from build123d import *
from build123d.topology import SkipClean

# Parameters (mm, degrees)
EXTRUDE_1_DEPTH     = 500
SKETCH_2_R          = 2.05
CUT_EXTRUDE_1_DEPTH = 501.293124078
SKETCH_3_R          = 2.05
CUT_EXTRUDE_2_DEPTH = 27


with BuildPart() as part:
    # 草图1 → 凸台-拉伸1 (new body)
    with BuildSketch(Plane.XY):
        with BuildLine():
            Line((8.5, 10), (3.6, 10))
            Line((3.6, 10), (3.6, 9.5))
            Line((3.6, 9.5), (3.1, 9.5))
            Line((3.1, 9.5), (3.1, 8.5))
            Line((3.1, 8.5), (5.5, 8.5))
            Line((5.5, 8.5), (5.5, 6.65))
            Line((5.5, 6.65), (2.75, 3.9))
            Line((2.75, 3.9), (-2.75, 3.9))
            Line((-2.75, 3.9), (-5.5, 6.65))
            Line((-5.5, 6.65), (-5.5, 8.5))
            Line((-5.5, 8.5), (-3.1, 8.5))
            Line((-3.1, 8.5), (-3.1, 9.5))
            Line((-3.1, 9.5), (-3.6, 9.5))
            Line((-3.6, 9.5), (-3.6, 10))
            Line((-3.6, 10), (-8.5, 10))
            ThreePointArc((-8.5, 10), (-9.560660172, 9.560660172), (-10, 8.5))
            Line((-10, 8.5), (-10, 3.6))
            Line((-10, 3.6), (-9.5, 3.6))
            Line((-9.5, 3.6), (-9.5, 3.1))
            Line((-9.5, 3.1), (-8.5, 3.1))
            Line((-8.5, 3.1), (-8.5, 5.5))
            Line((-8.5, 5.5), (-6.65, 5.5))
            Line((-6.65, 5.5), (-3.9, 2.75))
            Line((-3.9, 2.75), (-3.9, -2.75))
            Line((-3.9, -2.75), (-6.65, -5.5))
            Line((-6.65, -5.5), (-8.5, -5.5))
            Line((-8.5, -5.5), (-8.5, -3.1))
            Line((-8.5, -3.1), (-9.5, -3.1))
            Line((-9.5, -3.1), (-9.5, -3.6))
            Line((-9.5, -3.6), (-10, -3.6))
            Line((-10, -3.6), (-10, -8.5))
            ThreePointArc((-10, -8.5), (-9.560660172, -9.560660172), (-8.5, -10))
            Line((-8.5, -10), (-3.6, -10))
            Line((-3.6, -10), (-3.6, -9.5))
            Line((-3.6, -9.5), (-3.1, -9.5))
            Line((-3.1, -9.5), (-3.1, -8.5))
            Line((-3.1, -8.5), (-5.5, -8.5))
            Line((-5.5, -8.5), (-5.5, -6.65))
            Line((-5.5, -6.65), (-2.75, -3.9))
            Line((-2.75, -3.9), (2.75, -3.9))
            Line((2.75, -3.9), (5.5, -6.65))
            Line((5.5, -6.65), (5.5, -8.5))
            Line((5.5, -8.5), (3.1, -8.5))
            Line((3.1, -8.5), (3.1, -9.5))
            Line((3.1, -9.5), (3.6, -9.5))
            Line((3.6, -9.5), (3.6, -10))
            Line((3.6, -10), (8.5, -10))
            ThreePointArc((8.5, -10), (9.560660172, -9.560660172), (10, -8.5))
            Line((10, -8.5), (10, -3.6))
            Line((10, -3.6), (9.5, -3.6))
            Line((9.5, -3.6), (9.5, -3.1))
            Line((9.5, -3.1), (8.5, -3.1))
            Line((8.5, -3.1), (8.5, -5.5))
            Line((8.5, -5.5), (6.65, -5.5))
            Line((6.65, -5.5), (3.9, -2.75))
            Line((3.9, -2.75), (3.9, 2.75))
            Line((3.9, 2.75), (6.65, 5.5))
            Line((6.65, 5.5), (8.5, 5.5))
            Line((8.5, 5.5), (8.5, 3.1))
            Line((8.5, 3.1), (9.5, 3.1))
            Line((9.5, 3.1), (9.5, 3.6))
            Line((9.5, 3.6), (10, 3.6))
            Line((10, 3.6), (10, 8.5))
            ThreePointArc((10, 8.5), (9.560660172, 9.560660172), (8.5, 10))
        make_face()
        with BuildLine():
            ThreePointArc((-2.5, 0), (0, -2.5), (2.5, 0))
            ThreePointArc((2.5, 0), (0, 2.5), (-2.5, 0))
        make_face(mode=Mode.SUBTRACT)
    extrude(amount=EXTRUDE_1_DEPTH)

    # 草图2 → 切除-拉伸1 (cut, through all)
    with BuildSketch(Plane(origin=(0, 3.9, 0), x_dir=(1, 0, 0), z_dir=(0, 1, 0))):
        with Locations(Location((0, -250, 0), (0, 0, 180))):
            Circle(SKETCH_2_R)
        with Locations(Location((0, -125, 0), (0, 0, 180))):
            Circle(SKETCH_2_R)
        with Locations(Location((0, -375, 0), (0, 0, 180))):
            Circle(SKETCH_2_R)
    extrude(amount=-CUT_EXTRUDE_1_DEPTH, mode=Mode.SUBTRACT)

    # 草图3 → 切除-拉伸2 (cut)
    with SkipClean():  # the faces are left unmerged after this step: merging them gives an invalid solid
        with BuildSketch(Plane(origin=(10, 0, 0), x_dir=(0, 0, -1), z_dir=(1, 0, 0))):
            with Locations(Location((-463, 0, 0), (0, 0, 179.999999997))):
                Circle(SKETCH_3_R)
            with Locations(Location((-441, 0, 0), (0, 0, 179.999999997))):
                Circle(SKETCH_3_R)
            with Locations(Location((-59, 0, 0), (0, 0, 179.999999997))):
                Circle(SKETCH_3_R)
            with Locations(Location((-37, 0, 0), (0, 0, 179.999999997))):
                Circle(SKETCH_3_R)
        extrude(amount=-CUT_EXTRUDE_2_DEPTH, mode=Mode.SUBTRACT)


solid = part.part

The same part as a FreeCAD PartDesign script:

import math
import FreeCAD as App
import Part
import Sketcher

V = App.Vector

doc = App.newDocument("Part")
body = doc.addObject("PartDesign::Body", "Body")

sketch1 = body.newObject("Sketcher::SketchObject", "Sketch")
sketch1.AttachmentSupport = (doc.getObject("XY_Plane"), [""])
sketch1.MapMode = "FlatFace"
sketch1.addGeometry([
    Part.LineSegment(V(8.5, 10, 0), V(3.6, 10, 0)),
    Part.LineSegment(V(3.6, 10, 0), V(3.6, 9.5, 0)),
    Part.LineSegment(V(3.6, 9.5, 0), V(3.1, 9.5, 0)),
    Part.LineSegment(V(3.1, 9.5, 0), V(3.1, 8.5, 0)),
    Part.LineSegment(V(3.1, 8.5, 0), V(5.5, 8.5, 0)),
    Part.LineSegment(V(5.5, 8.5, 0), V(5.5, 6.7, 0)),
    Part.LineSegment(V(5.5, 6.7, 0), V(2.8, 3.9, 0)),
    Part.LineSegment(V(2.8, 3.9, 0), V(-2.8, 3.9, 0)),
    Part.LineSegment(V(-2.8, 3.9, 0), V(-5.5, 6.7, 0)),
    Part.LineSegment(V(-5.5, 6.7, 0), V(-5.5, 8.5, 0)),
    Part.LineSegment(V(-5.5, 8.5, 0), V(-3.1, 8.5, 0)),
    Part.LineSegment(V(-3.1, 8.5, 0), V(-3.1, 9.5, 0)),
    Part.LineSegment(V(-3.1, 9.5, 0), V(-3.6, 9.5, 0)),
    Part.LineSegment(V(-3.6, 9.5, 0), V(-3.6, 10, 0)),
    Part.LineSegment(V(-3.6, 10, 0), V(-8.5, 10, 0)),
    Part.ArcOfCircle(Part.Circle(V(-8.5, 8.5, 0), V(0, 0, 1), 1.5), math.radians(90), math.radians(180)),
    Part.LineSegment(V(-10, 8.5, 0), V(-10, 3.6, 0)),
    Part.LineSegment(V(-10, 3.6, 0), V(-9.5, 3.6, 0)),
    Part.LineSegment(V(-9.5, 3.6, 0), V(-9.5, 3.1, 0)),
    Part.LineSegment(V(-9.5, 3.1, 0), V(-8.5, 3.1, 0)),
    Part.LineSegment(V(-8.5, 3.1, 0), V(-8.5, 5.5, 0)),
    Part.LineSegment(V(-8.5, 5.5, 0), V(-6.7, 5.5, 0)),
    Part.LineSegment(V(-6.7, 5.5, 0), V(-3.9, 2.8, 0)),
    Part.LineSegment(V(-3.9, 2.8, 0), V(-3.9, -2.8, 0)),
    Part.LineSegment(V(-3.9, -2.8, 0), V(-6.7, -5.5, 0)),
    Part.LineSegment(V(-6.7, -5.5, 0), V(-8.5, -5.5, 0)),
    Part.LineSegment(V(-8.5, -5.5, 0), V(-8.5, -3.1, 0)),
    Part.LineSegment(V(-8.5, -3.1, 0), V(-9.5, -3.1, 0)),
    Part.LineSegment(V(-9.5, -3.1, 0), V(-9.5, -3.6, 0)),
    Part.LineSegment(V(-9.5, -3.6, 0), V(-10, -3.6, 0)),
    Part.LineSegment(V(-10, -3.6, 0), V(-10, -8.5, 0)),
    Part.ArcOfCircle(Part.Circle(V(-8.5, -8.5, 0), V(0, 0, 1), 1.5), math.radians(180), math.radians(270)),
    Part.LineSegment(V(-8.5, -10, 0), V(-3.6, -10, 0)),
    Part.LineSegment(V(-3.6, -10, 0), V(-3.6, -9.5, 0)),
    Part.LineSegment(V(-3.6, -9.5, 0), V(-3.1, -9.5, 0)),
    Part.LineSegment(V(-3.1, -9.5, 0), V(-3.1, -8.5, 0)),
    Part.LineSegment(V(-3.1, -8.5, 0), V(-5.5, -8.5, 0)),
    Part.LineSegment(V(-5.5, -8.5, 0), V(-5.5, -6.7, 0)),
    Part.LineSegment(V(-5.5, -6.7, 0), V(-2.8, -3.9, 0)),
    Part.LineSegment(V(-2.8, -3.9, 0), V(2.8, -3.9, 0)),
    Part.LineSegment(V(2.8, -3.9, 0), V(5.5, -6.7, 0)),
    Part.LineSegment(V(5.5, -6.7, 0), V(5.5, -8.5, 0)),
    Part.LineSegment(V(5.5, -8.5, 0), V(3.1, -8.5, 0)),
    Part.LineSegment(V(3.1, -8.5, 0), V(3.1, -9.5, 0)),
    Part.LineSegment(V(3.1, -9.5, 0), V(3.6, -9.5, 0)),
    Part.LineSegment(V(3.6, -9.5, 0), V(3.6, -10, 0)),
    Part.LineSegment(V(3.6, -10, 0), V(8.5, -10, 0)),
    Part.ArcOfCircle(Part.Circle(V(8.5, -8.5, 0), V(0, 0, 1), 1.5), math.radians(-90), math.radians(0)),
    Part.LineSegment(V(10, -8.5, 0), V(10, -3.6, 0)),
    Part.LineSegment(V(10, -3.6, 0), V(9.5, -3.6, 0)),
    Part.LineSegment(V(9.5, -3.6, 0), V(9.5, -3.1, 0)),
    Part.LineSegment(V(9.5, -3.1, 0), V(8.5, -3.1, 0)),
    Part.LineSegment(V(8.5, -3.1, 0), V(8.5, -5.5, 0)),
    Part.LineSegment(V(8.5, -5.5, 0), V(6.7, -5.5, 0)),
    Part.LineSegment(V(6.7, -5.5, 0), V(3.9, -2.8, 0)),
    Part.LineSegment(V(3.9, -2.8, 0), V(3.9, 2.8, 0)),
    Part.LineSegment(V(3.9, 2.8, 0), V(6.7, 5.5, 0)),
    Part.LineSegment(V(6.7, 5.5, 0), V(8.5, 5.5, 0)),
    Part.LineSegment(V(8.5, 5.5, 0), V(8.5, 3.1, 0)),
    Part.LineSegment(V(8.5, 3.1, 0), V(9.5, 3.1, 0)),
    Part.LineSegment(V(9.5, 3.1, 0), V(9.5, 3.6, 0)),
    Part.LineSegment(V(9.5, 3.6, 0), V(10, 3.6, 0)),
    Part.LineSegment(V(10, 3.6, 0), V(10, 8.5, 0)),
    Part.ArcOfCircle(Part.Circle(V(8.5, 8.5, 0), V(0, 0, 1), 1.5), math.radians(0), math.radians(90)),
    Part.Circle(V(0, 0, 0), V(0, 0, 1), 2.5),
], False)
sketch1.addConstraint([
    Sketcher.Constraint("Coincident", 0, 2, 1, 1),
    Sketcher.Constraint("Coincident", 1, 2, 2, 1),
    Sketcher.Constraint("Coincident", 2, 2, 3, 1),
    Sketcher.Constraint("Coincident", 3, 2, 4, 1),
    Sketcher.Constraint("Coincident", 4, 2, 5, 1),
    Sketcher.Constraint("Coincident", 5, 2, 6, 1),
    Sketcher.Constraint("Coincident", 6, 2, 7, 1),
    Sketcher.Constraint("Coincident", 7, 2, 8, 1),
    Sketcher.Constraint("Coincident", 8, 2, 9, 1),
    Sketcher.Constraint("Coincident", 9, 2, 10, 1),
    Sketcher.Constraint("Coincident", 10, 2, 11, 1),
    Sketcher.Constraint("Coincident", 11, 2, 12, 1),
    Sketcher.Constraint("Coincident", 12, 2, 13, 1),
    Sketcher.Constraint("Coincident", 13, 2, 14, 1),
    Sketcher.Constraint("Tangent", 14, 2, 15, 1),
    Sketcher.Constraint("Tangent", 15, 2, 16, 1),
    Sketcher.Constraint("Coincident", 16, 2, 17, 1),
    Sketcher.Constraint("Coincident", 17, 2, 18, 1),
    Sketcher.Constraint("Coincident", 18, 2, 19, 1),
    Sketcher.Constraint("Coincident", 19, 2, 20, 1),
    Sketcher.Constraint("Coincident", 20, 2, 21, 1),
    Sketcher.Constraint("Coincident", 21, 2, 22, 1),
    Sketcher.Constraint("Coincident", 22, 2, 23, 1),
    Sketcher.Constraint("Coincident", 23, 2, 24, 1),
    Sketcher.Constraint("Coincident", 24, 2, 25, 1),
    Sketcher.Constraint("Coincident", 25, 2, 26, 1),
    Sketcher.Constraint("Coincident", 26, 2, 27, 1),
    Sketcher.Constraint("Coincident", 27, 2, 28, 1),
    Sketcher.Constraint("Coincident", 28, 2, 29, 1),
    Sketcher.Constraint("Coincident", 29, 2, 30, 1),
    Sketcher.Constraint("Tangent", 30, 2, 31, 1),
    Sketcher.Constraint("Tangent", 31, 2, 32, 1),
    Sketcher.Constraint("Coincident", 32, 2, 33, 1),
    Sketcher.Constraint("Coincident", 33, 2, 34, 1),
    Sketcher.Constraint("Coincident", 34, 2, 35, 1),
    Sketcher.Constraint("Coincident", 35, 2, 36, 1),
    Sketcher.Constraint("Coincident", 36, 2, 37, 1),
    Sketcher.Constraint("Coincident", 37, 2, 38, 1),
    Sketcher.Constraint("Coincident", 38, 2, 39, 1),
    Sketcher.Constraint("Coincident", 39, 2, 40, 1),
    Sketcher.Constraint("Coincident", 40, 2, 41, 1),
    Sketcher.Constraint("Coincident", 41, 2, 42, 1),
    Sketcher.Constraint("Coincident", 42, 2, 43, 1),
    Sketcher.Constraint("Coincident", 43, 2, 44, 1),
    Sketcher.Constraint("Coincident", 44, 2, 45, 1),
    Sketcher.Constraint("Coincident", 45, 2, 46, 1),
    Sketcher.Constraint("Tangent", 46, 2, 47, 1),
    Sketcher.Constraint("Tangent", 47, 2, 48, 1),
    Sketcher.Constraint("Coincident", 48, 2, 49, 1),
    Sketcher.Constraint("Coincident", 49, 2, 50, 1),
    Sketcher.Constraint("Coincident", 50, 2, 51, 1),
    Sketcher.Constraint("Coincident", 51, 2, 52, 1),
    Sketcher.Constraint("Coincident", 52, 2, 53, 1),
    Sketcher.Constraint("Coincident", 53, 2, 54, 1),
    Sketcher.Constraint("Coincident", 54, 2, 55, 1),
    Sketcher.Constraint("Coincident", 55, 2, 56, 1),
    Sketcher.Constraint("Coincident", 56, 2, 57, 1),
    Sketcher.Constraint("Coincident", 57, 2, 58, 1),
    Sketcher.Constraint("Coincident", 58, 2, 59, 1),
    Sketcher.Constraint("Coincident", 59, 2, 60, 1),
    Sketcher.Constraint("Coincident", 60, 2, 61, 1),
    Sketcher.Constraint("Coincident", 61, 2, 62, 1),
    Sketcher.Constraint("Tangent", 62, 2, 63, 1),
    Sketcher.Constraint("Tangent", 63, 2, 0, 1),
    Sketcher.Constraint("Horizontal", 0),
    Sketcher.Constraint("Vertical", 1),
    Sketcher.Constraint("Horizontal", 2),
    Sketcher.Constraint("Vertical", 3),
    Sketcher.Constraint("Horizontal", 4),
    Sketcher.Constraint("Vertical", 5),
    Sketcher.Constraint("Horizontal", 7),
    Sketcher.Constraint("Vertical", 9),
    Sketcher.Constraint("Horizontal", 10),
    Sketcher.Constraint("Vertical", 11),
    Sketcher.Constraint("Horizontal", 12),
    Sketcher.Constraint("Vertical", 13),
    Sketcher.Constraint("Horizontal", 14),
    Sketcher.Constraint("Vertical", 16),
    Sketcher.Constraint("Horizontal", 17),
    Sketcher.Constraint("Vertical", 18),
    Sketcher.Constraint("Horizontal", 19),
    Sketcher.Constraint("Vertical", 20),
    Sketcher.Constraint("Horizontal", 21),
    Sketcher.Constraint("Vertical", 23),
    Sketcher.Constraint("Horizontal", 25),
    Sketcher.Constraint("Vertical", 26),
    Sketcher.Constraint("Horizontal", 27),
    Sketcher.Constraint("Vertical", 28),
    Sketcher.Constraint("Horizontal", 29),
    Sketcher.Constraint("Vertical", 30),
    Sketcher.Constraint("Horizontal", 32),
    Sketcher.Constraint("Vertical", 33),
    Sketcher.Constraint("Horizontal", 34),
    Sketcher.Constraint("Vertical", 35),
    Sketcher.Constraint("Horizontal", 36),
    Sketcher.Constraint("Vertical", 37),
    Sketcher.Constraint("Horizontal", 39),
    Sketcher.Constraint("Vertical", 41),
    Sketcher.Constraint("Horizontal", 42),
    Sketcher.Constraint("Vertical", 43),
    Sketcher.Constraint("Horizontal", 44),
    Sketcher.Constraint("Vertical", 45),
    Sketcher.Constraint("Horizontal", 46),
    Sketcher.Constraint("Vertical", 48),
    Sketcher.Constraint("Horizontal", 49),
    Sketcher.Constraint("Vertical", 50),
    Sketcher.Constraint("Horizontal", 51),
    Sketcher.Constraint("Vertical", 52),
    Sketcher.Constraint("Horizontal", 53),
    Sketcher.Constraint("Vertical", 55),
    Sketcher.Constraint("Horizontal", 57),
    Sketcher.Constraint("Vertical", 58),
    Sketcher.Constraint("Horizontal", 59),
    Sketcher.Constraint("Vertical", 60),
    Sketcher.Constraint("Horizontal", 61),
    Sketcher.Constraint("Vertical", 62),
    Sketcher.Constraint("Coincident", 64, 3, -1, 1),
    Sketcher.Constraint("Equal", 15, 31),
    Sketcher.Constraint("Equal", 31, 47),
    Sketcher.Constraint("Equal", 47, 63),
    Sketcher.Constraint("Symmetric", 15, 3, 47, 3, -1, 1),
    Sketcher.Constraint("Symmetric", 31, 3, 63, 3, -1, 1),
    Sketcher.Constraint("Symmetric", 1, 2, 33, 2, -1, 1),
    Sketcher.Constraint("Symmetric", 3, 2, 35, 2, -1, 1),
    Sketcher.Constraint("Symmetric", 5, 2, 37, 2, -1, 1),
    Sketcher.Constraint("Symmetric", 6, 2, 38, 2, -1, 1),
    Sketcher.Constraint("Symmetric", 8, 2, 40, 2, -1, 1),
    Sketcher.Constraint("Symmetric", 10, 2, 42, 2, -1, 1),
    Sketcher.Constraint("Symmetric", 12, 2, 44, 2, -1, 1),
    Sketcher.Constraint("Symmetric", 17, 2, 49, 2, -1, 1),
    Sketcher.Constraint("Symmetric", 19, 2, 51, 2, -1, 1),
    Sketcher.Constraint("Symmetric", 21, 2, 53, 2, -1, 1),
    Sketcher.Constraint("Symmetric", 22, 2, 54, 2, -1, 1),
    Sketcher.Constraint("Symmetric", 24, 2, 56, 2, -1, 1),
    Sketcher.Constraint("Symmetric", 26, 2, 58, 2, -1, 1),
    Sketcher.Constraint("Symmetric", 28, 2, 60, 2, -1, 1),
    Sketcher.Constraint("Symmetric", 31, 3, 47, 3, -2),
    Sketcher.Constraint("Symmetric", 5, 2, 8, 2, -2),
    Sketcher.Constraint("Symmetric", 3, 2, 10, 2, -2),
    Sketcher.Constraint("Symmetric", 1, 2, 12, 2, -2),
    Sketcher.Constraint("Symmetric", 28, 2, 49, 2, -2),
    Sketcher.Constraint("Symmetric", 26, 2, 51, 2, -2),
    Sketcher.Constraint("Symmetric", 24, 2, 53, 2, -2),
    Sketcher.Constraint("Perpendicular", 6, 8),
    Sketcher.Constraint("Parallel", 8, 22),
    Sketcher.Constraint("Perpendicular", 22, 24),
    Sketcher.Constraint("Perpendicular", 38, 40),
    Sketcher.Constraint("Perpendicular", 54, 56),
    Sketcher.Constraint("Horizontal", 63, 3, 3, 2),
    Sketcher.Constraint("Horizontal", 23, 2, 54, 2),
    Sketcher.Constraint("Vertical", 14, 2, 19, 2),
    Sketcher.Constraint("Equal", 12, 17),
    Sketcher.Constraint("Equal", 61, 1),
    Sketcher.Constraint("Equal", 57, 5),
    Sketcher.Constraint("Equal", 46, 16),
    Sketcher.Constraint("Equal", 13, 18),
    Sketcher.Constraint("Equal", 42, 20),
    Sketcher.Constraint("Equal", 39, 23),
    Sketcher.Constraint("Equal", 8, 22),
    Sketcher.Constraint("Diameter", 64, 5.0),
    Sketcher.Constraint("Radius", 15, 1.5),
    Sketcher.Constraint("DistanceX", 19, 1, 19, 2, 1.0),
    Sketcher.Constraint("DistanceX", 0, 2, 0, 1, 4.9),
    Sketcher.Constraint("DistanceX", 4, 1, 4, 2, 2.4),
    Sketcher.Constraint("DistanceX", 7, 2, 7, 1, 5.5),
    Sketcher.Constraint("DistanceY", -1, 1, 0, 2, 10.0),
    Sketcher.Constraint("DistanceX", 21, 1, 21, 2, 1.85),
])
pad1 = body.newObject("PartDesign::Pad", "Pad")
pad1.Profile = sketch1
pad1.Length = 500

sketch2 = body.newObject("Sketcher::SketchObject", "Sketch001")
sketch2.AttachmentSupport = (doc.getObject("XZ_Plane"), [""])
sketch2.MapMode = "FlatFace"
sketch2.AttachmentOffset = App.Placement(V(0, 0, -3.9), App.Rotation())
sketch2.addGeometry([
    Part.Circle(V(0, 250, 0), V(0, 0, 1), 2),
    Part.Circle(V(0, 125, 0), V(0, 0, 1), 2),
    Part.Circle(V(0, 375, 0), V(0, 0, 1), 2),
], False)
sketch2.addConstraint([
    Sketcher.Constraint("Equal", 0, 1),
    Sketcher.Constraint("Equal", 1, 2),
    Sketcher.Constraint("PointOnObject", 0, 3, -2),
    Sketcher.Constraint("PointOnObject", 1, 3, -2),
    Sketcher.Constraint("PointOnObject", 2, 3, -2),
    Sketcher.Constraint("Diameter", 0, 4.1),
    Sketcher.Constraint("DistanceY", -1, 1, 0, 3, 250.0),
    Sketcher.Constraint("DistanceY", -1, 1, 1, 3, 125.0),
    Sketcher.Constraint("DistanceY", -1, 1, 2, 3, 375.0),
])
pocket1 = body.newObject("PartDesign::Pocket", "Pocket")
pocket1.Profile = sketch2
pocket1.Type = "ThroughAll"
pocket1.Reversed = True

sketch3 = body.newObject("Sketcher::SketchObject", "Sketch002")
sketch3.AttachmentSupport = (doc.getObject("YZ_Plane"), [""])
sketch3.MapMode = "FlatFace"
sketch3.AttachmentOffset = App.Placement(V(0, 0, 10), App.Rotation())
sketch3.addGeometry([
    Part.Circle(V(0, 463, 0), V(0, 0, 1), 2),
    Part.Circle(V(0, 441, 0), V(0, 0, 1), 2),
    Part.Circle(V(0, 59, 0), V(0, 0, 1), 2),
    Part.Circle(V(0, 37, 0), V(0, 0, 1), 2),
], False)
sketch3.addConstraint([
    Sketcher.Constraint("Equal", 0, 1),
    Sketcher.Constraint("Equal", 1, 2),
    Sketcher.Constraint("Equal", 2, 3),
    Sketcher.Constraint("PointOnObject", 0, 3, -2),
    Sketcher.Constraint("PointOnObject", 1, 3, -2),
    Sketcher.Constraint("PointOnObject", 2, 3, -2),
    Sketcher.Constraint("PointOnObject", 3, 3, -2),
    Sketcher.Constraint("Diameter", 0, 4.1),
    Sketcher.Constraint("DistanceY", -1, 1, 0, 3, 463.0),
    Sketcher.Constraint("DistanceY", -1, 1, 1, 3, 441.0),
    Sketcher.Constraint("DistanceY", -1, 1, 2, 3, 59.0),
    Sketcher.Constraint("DistanceY", -1, 1, 3, 3, 37.0),
])
pocket2 = body.newObject("PartDesign::Pocket", "Pocket001")
pocket2.Profile = sketch3
pocket2.Length = 27

doc.recompute()
